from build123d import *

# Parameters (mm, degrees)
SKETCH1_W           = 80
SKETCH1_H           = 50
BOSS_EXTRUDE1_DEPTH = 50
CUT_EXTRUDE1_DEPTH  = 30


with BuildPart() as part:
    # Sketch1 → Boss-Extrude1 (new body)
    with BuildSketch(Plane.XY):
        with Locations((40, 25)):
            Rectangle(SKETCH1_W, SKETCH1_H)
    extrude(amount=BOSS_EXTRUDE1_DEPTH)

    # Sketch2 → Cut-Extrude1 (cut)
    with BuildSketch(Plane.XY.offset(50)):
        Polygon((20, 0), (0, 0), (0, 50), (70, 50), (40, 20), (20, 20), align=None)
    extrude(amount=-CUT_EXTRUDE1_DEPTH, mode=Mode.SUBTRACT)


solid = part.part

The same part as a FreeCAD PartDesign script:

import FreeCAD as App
import Part
import Sketcher

V = App.Vector
Q = App.Units.Quantity


def add_polygon(sketch, points):
    """Adds a closed chain of lines whose ends are joined by coincident constraints."""
    first, n = sketch.GeometryCount, len(points)
    for a, b in zip(points, points[1:] + points[:1]):
        sketch.addGeometry(Part.LineSegment(App.Vector(*a, 0), App.Vector(*b, 0)), False)
    for i in range(n):
        sketch.addConstraint(Sketcher.Constraint("Coincident", first + i, 2, first + (i + 1) % n, 1))

doc = App.newDocument("Part")
params = doc.addObject("Spreadsheet::Sheet", "Params")
for row, (alias, value) in enumerate([
    ("sketch1_width", "80 mm"),
    ("sketch1_height", "50 mm"),
    ("pad1_length", "50 mm"),
    ("sketch2_width", "20 mm"),
    ("sketch2_width2", "70 mm"),
    ("sketch2_height", "50 mm"),
    ("pocket1_length", "30 mm"),
], start=1):
    params.set(f"A{row}", alias)
    params.set(f"B{row}", "=" + value)
    params.setAlias(f"B{row}", alias)

body = doc.addObject("PartDesign::Body", "Body")

sketch1 = body.newObject("Sketcher::SketchObject", "Sketch")
sketch1.AttachmentSupport = (doc.getObject("XY_Plane"), [""])
sketch1.MapMode = "FlatFace"
add_polygon(sketch1, [(0, 50), (0, 0), (80, 0), (80, 50)])
sketch1.addConstraint([
    Sketcher.Constraint("Vertical", 0),
    Sketcher.Constraint("Horizontal", 1),
    Sketcher.Constraint("Vertical", 2),
    Sketcher.Constraint("Horizontal", 3),
    Sketcher.Constraint("Coincident", 0, 2, -1, 1),
    Sketcher.Constraint("DistanceX", 1, 1, 1, 2, Q("80 mm")),
    Sketcher.Constraint("DistanceY", 0, 2, 0, 1, Q("50 mm")),
])
sketch1.setExpression("Constraints[9]", "Params.sketch1_width")
sketch1.setExpression("Constraints[10]", "Params.sketch1_height")
pad1 = body.newObject("PartDesign::Pad", "Pad")
pad1.Profile = sketch1
pad1.setExpression("Length", "Params.pad1_length")

sketch2 = body.newObject("Sketcher::SketchObject", "Sketch001")
sketch2.AttachmentSupport = (doc.getObject("XY_Plane"), [""])
sketch2.MapMode = "FlatFace"
sketch2.AttachmentOffset = App.Placement(V(0, 0, 50), App.Rotation())
add_polygon(sketch2, [(0, 0), (20, 0), (20, 20), (40, 20), (70, 50), (0, 50)])
sketch2.addConstraint([
    Sketcher.Constraint("Horizontal", 0),
    Sketcher.Constraint("Vertical", 1),
    Sketcher.Constraint("Horizontal", 2),
    Sketcher.Constraint("Horizontal", 4),
    Sketcher.Constraint("Vertical", 5),
    Sketcher.Constraint("Coincident", 5, 2, -1, 1),
    Sketcher.Constraint("Equal", 0, 2),
    Sketcher.Constraint("Equal", 2, 1),
    Sketcher.Constraint("DistanceX", 0, 1, 0, 2, Q("20 mm")),
    Sketcher.Constraint("DistanceX", 4, 2, 4, 1, Q("70 mm")),
    Sketcher.Constraint("DistanceY", 5, 2, 5, 1, Q("50 mm")),
])
sketch2.setExpression("Constraints[14]", "Params.sketch2_width")
sketch2.setExpression("Constraints[15]", "Params.sketch2_width2")
sketch2.setExpression("Constraints[16]", "Params.sketch2_height")
pocket1 = body.newObject("PartDesign::Pocket", "Pocket")
pocket1.Profile = sketch2
pocket1.setExpression("Length", "Params.pocket1_length")

doc.recompute()
